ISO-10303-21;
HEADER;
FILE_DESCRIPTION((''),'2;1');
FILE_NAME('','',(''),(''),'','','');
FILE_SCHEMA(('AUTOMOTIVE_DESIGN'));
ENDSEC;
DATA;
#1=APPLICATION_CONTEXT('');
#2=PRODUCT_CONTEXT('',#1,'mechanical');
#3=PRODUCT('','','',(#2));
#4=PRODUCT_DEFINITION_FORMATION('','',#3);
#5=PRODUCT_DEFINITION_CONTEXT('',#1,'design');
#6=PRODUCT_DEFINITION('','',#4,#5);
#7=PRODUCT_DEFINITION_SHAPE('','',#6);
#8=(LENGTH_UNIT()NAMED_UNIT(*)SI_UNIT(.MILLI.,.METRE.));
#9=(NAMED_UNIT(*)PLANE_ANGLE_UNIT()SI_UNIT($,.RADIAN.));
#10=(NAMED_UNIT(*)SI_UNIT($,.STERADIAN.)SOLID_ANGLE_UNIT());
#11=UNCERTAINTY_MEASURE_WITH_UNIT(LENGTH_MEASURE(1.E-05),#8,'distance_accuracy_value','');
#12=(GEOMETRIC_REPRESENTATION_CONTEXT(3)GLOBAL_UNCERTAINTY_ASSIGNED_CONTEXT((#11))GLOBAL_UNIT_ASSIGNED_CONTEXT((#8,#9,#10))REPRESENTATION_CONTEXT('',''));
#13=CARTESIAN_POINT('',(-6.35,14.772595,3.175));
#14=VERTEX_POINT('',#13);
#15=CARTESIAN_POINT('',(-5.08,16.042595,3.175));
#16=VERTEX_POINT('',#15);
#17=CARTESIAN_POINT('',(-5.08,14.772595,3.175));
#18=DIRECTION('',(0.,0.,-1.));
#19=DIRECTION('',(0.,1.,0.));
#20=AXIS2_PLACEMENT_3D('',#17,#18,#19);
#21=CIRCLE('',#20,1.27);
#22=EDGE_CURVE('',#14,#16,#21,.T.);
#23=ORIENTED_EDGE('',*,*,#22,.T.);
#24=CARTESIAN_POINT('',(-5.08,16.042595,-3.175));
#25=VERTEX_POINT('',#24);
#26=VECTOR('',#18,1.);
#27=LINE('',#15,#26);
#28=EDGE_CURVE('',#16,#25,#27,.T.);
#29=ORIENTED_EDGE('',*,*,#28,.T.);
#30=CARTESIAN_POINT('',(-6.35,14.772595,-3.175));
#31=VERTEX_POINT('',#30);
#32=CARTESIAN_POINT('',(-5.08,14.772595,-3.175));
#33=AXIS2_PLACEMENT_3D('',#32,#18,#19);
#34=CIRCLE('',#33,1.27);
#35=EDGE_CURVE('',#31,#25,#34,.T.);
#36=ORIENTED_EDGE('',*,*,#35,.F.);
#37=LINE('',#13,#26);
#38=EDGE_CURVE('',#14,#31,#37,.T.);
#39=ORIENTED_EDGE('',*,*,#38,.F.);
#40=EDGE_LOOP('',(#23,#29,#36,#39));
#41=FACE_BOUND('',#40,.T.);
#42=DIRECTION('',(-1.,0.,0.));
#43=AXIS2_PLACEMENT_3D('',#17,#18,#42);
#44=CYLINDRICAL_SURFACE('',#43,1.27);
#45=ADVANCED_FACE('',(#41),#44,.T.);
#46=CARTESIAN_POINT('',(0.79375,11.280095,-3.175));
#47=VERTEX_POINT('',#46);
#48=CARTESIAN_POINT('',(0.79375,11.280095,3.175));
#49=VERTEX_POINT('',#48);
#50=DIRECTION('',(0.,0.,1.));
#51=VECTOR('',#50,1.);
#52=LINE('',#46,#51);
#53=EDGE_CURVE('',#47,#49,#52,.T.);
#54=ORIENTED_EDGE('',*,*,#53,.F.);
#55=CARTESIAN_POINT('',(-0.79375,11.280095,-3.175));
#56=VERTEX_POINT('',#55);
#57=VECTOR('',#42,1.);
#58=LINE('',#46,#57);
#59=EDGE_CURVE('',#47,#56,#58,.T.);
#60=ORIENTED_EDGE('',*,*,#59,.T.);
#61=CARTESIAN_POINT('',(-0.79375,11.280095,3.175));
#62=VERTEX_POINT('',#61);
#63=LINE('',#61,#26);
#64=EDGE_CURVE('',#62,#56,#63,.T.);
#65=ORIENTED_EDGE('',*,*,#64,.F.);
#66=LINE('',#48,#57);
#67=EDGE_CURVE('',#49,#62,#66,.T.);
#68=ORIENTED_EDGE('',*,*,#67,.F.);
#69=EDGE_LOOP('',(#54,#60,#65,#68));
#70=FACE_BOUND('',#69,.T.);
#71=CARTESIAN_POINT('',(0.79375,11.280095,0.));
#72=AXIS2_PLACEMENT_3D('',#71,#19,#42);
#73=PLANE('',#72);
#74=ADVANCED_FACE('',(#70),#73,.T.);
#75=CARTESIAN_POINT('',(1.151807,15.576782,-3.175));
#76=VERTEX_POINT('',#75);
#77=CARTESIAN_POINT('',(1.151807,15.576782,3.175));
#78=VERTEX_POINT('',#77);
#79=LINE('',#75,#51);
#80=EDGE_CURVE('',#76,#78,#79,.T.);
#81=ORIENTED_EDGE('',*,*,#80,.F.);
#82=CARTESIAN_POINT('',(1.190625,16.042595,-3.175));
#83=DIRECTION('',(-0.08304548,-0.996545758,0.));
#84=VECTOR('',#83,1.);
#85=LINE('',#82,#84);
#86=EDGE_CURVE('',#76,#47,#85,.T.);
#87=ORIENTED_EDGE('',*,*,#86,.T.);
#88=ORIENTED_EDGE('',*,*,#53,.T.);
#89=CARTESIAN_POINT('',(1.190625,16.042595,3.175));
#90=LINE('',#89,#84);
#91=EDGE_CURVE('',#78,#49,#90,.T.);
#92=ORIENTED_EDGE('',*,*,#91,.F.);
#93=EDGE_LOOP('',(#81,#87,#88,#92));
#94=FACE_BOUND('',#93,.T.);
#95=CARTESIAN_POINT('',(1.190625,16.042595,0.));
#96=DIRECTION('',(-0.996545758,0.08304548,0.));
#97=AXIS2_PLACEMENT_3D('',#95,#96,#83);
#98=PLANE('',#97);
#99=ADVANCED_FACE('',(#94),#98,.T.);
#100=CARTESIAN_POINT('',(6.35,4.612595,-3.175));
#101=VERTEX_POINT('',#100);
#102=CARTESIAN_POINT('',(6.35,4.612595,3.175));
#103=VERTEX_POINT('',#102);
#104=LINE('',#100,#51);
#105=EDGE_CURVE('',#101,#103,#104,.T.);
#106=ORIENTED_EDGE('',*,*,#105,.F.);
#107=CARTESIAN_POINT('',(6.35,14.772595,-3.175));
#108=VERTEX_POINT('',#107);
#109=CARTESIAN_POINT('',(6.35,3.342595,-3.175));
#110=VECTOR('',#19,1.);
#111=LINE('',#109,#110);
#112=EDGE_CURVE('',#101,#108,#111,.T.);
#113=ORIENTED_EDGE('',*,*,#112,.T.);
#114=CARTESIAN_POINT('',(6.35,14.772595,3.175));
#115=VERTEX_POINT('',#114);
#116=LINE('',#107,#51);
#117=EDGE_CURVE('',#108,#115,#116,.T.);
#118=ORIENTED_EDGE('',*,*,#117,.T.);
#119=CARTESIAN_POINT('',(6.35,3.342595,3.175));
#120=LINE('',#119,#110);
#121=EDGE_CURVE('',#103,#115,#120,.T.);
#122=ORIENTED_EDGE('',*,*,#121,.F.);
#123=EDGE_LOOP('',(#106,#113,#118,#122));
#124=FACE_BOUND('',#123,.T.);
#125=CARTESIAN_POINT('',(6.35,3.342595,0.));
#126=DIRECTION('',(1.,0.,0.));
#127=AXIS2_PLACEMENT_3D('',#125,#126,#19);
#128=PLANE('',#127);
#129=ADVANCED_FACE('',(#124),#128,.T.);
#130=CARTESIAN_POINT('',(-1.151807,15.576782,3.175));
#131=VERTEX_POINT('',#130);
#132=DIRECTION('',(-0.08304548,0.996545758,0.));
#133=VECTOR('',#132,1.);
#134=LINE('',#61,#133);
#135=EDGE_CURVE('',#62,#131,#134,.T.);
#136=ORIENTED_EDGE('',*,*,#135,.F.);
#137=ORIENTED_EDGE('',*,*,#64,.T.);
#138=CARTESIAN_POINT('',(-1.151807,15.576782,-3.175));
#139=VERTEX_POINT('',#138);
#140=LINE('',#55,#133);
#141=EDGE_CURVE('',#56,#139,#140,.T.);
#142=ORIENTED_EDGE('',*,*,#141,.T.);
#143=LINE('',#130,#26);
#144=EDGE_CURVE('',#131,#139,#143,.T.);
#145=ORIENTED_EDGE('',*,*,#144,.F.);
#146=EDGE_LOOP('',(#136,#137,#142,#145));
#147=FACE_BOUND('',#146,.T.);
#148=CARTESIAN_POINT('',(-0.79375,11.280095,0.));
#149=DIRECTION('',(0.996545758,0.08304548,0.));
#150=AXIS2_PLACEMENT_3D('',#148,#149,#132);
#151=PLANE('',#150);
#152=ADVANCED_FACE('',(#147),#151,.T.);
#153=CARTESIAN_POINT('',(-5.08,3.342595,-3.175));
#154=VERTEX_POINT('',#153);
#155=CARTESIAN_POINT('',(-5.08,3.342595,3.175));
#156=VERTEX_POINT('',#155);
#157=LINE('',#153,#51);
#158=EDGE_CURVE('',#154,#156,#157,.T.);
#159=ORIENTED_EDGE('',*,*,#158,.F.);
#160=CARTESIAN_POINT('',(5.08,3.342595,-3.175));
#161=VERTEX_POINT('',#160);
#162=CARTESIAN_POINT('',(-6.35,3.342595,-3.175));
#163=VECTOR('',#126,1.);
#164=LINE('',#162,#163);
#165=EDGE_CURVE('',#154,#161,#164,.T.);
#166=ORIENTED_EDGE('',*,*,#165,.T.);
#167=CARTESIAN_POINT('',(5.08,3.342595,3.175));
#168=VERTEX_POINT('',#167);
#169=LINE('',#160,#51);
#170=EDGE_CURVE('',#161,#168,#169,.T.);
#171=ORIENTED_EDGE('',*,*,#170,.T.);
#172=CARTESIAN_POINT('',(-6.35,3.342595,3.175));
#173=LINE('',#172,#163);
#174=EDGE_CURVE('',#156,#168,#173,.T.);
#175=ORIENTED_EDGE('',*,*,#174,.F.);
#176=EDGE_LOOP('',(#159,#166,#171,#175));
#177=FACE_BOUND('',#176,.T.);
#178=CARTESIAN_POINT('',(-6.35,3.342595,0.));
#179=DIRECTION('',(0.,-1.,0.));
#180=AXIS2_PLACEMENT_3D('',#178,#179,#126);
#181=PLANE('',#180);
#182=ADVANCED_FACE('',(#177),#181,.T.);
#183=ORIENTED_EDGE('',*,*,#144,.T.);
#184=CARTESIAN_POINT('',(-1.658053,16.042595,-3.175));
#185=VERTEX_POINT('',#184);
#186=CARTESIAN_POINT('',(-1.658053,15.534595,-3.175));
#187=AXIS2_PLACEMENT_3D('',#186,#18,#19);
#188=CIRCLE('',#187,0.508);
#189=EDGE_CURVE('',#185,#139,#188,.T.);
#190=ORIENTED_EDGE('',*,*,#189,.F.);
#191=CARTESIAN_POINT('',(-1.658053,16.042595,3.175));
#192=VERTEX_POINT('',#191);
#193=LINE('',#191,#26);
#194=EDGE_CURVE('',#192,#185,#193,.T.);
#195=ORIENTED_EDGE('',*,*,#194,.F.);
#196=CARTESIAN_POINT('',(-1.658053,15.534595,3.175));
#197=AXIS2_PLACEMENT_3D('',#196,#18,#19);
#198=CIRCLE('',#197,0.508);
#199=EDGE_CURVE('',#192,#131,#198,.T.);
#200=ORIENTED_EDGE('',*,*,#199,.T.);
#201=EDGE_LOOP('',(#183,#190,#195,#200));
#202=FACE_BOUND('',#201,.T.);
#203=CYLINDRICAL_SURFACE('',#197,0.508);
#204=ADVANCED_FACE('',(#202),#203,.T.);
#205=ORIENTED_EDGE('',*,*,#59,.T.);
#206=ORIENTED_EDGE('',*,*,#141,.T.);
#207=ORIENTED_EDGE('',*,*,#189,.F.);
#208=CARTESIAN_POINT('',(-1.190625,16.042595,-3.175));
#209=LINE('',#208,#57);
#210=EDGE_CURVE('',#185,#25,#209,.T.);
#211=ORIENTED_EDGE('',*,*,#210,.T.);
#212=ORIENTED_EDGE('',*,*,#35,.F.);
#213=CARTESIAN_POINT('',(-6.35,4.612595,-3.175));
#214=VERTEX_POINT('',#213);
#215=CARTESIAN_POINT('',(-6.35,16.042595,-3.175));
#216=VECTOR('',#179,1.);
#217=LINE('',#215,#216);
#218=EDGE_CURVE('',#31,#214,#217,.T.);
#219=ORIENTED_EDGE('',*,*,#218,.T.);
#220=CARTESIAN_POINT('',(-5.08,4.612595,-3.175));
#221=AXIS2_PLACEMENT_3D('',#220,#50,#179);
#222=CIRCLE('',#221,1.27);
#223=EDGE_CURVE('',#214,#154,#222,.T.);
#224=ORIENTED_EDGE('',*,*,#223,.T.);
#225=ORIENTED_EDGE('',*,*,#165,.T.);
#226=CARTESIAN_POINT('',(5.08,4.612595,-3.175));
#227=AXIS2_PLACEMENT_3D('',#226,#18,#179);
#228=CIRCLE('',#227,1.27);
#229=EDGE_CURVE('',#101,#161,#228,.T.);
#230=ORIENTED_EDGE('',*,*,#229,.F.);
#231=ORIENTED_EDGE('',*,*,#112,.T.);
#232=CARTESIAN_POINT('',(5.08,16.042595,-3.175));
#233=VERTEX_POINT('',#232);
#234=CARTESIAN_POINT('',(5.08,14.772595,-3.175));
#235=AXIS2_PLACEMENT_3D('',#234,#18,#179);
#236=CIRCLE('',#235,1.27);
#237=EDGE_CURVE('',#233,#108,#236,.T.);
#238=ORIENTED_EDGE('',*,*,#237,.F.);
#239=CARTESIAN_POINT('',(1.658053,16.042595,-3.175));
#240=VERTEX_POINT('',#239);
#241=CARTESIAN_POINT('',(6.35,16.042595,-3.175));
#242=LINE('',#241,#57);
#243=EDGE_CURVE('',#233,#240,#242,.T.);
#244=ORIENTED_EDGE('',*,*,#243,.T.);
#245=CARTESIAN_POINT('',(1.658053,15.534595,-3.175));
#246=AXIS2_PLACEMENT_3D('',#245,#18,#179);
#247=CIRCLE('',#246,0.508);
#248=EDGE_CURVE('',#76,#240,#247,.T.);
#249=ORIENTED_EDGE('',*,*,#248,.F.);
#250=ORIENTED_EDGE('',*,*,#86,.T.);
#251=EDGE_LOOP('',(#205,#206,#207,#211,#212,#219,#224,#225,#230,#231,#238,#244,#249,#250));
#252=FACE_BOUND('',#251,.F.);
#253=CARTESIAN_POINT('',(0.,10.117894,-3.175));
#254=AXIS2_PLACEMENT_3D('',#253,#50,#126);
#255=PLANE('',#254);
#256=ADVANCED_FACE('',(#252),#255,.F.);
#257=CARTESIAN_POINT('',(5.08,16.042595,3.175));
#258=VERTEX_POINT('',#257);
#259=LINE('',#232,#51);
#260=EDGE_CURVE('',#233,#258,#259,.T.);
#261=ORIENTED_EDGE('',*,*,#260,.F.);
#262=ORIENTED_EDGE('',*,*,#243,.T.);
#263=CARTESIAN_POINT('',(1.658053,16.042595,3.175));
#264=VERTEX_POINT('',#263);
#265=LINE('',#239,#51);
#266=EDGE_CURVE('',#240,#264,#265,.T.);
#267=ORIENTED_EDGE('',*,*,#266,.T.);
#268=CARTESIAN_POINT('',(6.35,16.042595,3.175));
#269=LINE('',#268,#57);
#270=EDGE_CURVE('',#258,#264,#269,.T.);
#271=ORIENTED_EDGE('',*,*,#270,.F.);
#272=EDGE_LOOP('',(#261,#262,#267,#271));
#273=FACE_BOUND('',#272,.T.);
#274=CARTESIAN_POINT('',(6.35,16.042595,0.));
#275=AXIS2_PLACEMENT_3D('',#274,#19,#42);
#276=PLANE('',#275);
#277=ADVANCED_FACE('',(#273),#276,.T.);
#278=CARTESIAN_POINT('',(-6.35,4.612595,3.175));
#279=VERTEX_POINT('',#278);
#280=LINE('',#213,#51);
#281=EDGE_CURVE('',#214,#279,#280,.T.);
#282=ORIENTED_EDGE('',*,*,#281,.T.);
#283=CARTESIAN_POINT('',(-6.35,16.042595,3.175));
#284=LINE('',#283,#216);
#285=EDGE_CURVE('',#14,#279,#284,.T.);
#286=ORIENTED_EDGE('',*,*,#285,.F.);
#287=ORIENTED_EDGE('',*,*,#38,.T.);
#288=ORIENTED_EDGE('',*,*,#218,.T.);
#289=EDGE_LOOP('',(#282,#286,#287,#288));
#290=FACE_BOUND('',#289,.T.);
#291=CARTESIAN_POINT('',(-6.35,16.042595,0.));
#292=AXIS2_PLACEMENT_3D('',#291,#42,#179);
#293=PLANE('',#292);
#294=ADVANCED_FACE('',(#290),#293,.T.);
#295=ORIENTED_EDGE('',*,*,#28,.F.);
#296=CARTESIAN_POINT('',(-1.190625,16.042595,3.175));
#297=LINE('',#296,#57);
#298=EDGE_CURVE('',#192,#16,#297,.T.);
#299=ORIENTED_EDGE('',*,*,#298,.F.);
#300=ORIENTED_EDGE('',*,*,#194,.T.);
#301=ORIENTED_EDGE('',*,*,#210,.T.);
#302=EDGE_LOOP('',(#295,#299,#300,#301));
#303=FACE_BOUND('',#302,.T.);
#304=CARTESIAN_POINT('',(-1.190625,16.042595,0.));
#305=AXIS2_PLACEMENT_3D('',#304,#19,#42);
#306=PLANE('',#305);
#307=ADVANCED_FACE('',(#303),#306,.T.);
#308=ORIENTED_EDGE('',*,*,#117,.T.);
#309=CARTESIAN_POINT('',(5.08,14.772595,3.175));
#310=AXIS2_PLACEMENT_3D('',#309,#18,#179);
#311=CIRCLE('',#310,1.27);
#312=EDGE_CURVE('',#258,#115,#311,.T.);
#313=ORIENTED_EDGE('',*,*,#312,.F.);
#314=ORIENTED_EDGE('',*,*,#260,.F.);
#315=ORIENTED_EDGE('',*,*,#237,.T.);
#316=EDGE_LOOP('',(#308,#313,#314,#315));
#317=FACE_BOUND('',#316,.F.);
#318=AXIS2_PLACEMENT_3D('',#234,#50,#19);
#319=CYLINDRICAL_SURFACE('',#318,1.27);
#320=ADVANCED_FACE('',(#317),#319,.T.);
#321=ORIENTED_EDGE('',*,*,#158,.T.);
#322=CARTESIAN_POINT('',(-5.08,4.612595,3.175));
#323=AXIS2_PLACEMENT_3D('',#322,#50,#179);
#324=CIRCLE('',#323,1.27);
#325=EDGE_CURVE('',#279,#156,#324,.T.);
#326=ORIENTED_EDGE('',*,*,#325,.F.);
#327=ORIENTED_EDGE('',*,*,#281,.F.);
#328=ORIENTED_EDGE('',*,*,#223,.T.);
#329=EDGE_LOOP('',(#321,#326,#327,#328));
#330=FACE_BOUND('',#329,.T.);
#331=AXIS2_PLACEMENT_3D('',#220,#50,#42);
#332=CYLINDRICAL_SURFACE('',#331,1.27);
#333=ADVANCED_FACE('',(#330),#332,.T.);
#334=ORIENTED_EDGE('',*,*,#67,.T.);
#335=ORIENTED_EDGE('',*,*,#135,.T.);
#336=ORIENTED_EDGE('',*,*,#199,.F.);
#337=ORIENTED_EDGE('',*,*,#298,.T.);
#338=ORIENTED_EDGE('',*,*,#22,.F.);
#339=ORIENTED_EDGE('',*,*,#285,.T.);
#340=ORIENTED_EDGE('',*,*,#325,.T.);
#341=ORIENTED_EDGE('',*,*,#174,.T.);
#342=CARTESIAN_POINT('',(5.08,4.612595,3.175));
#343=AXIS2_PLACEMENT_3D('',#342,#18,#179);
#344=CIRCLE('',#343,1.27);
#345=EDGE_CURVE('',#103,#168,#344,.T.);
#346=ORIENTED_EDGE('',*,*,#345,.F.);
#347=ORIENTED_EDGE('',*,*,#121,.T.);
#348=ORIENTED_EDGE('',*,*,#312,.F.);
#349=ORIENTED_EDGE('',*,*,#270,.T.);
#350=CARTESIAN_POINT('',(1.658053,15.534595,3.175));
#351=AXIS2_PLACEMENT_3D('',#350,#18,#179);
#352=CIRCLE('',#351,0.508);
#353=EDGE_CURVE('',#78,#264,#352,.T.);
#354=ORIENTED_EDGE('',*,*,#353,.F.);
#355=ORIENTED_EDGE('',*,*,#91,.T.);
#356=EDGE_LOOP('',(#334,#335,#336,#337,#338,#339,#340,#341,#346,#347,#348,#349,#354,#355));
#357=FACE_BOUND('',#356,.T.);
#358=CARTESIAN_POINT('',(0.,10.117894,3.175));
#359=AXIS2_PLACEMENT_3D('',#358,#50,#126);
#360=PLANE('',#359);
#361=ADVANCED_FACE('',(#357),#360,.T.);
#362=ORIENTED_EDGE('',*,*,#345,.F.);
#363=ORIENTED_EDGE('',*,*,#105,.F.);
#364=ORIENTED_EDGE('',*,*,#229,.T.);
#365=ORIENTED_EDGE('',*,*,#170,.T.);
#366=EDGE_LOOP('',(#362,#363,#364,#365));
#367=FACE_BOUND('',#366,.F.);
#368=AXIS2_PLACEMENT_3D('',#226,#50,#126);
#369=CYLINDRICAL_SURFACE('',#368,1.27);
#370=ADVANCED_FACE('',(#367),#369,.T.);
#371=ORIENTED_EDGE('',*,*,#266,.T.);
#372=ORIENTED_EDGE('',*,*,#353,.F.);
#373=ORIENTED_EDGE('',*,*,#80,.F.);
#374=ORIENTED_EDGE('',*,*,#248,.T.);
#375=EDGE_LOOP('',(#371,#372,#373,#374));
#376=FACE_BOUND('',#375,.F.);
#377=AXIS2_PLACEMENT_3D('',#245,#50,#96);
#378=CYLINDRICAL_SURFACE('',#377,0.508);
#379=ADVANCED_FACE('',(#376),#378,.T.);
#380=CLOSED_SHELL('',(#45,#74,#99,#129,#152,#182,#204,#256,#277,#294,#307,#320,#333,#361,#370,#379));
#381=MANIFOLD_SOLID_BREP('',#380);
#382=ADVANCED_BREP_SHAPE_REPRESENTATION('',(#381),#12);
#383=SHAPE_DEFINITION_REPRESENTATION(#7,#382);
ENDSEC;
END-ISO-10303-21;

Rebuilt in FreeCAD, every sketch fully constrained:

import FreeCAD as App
import Part
import Sketcher
from FreeCAD import Vector
Q = App.Units.Quantity


def edges_at(feature, points):
    """Names of the edges that pass closest to the given points."""
    edges = feature.Shape.Edges
    near = lambda p: min(range(len(edges)), key=lambda i: edges[i].distToShape(Part.Vertex(*p))[0])
    return sorted({f"Edge{near(p) + 1}" for p in points})

doc = App.newDocument("Part")
body = doc.addObject("PartDesign::Body", "Body")

sketch1 = doc.addObject("Sketcher::SketchObject", "Sketch")
body.addObject(sketch1)
sketch1.AttachmentSupport = (doc.XY_Plane, [""])
sketch1.MapMode = "FlatFace"
sketch1.addGeometry([
    Part.LineSegment(Vector(-6.3, 16, 0), Vector(-6.3, 3.3, 0)),
    Part.LineSegment(Vector(-6.3, 3.3, 0), Vector(6.3, 3.3, 0)),
    Part.LineSegment(Vector(6.3, 3.3, 0), Vector(6.3, 16, 0)),
    Part.LineSegment(Vector(6.3, 16, 0), Vector(1.2, 16, 0)),
    Part.LineSegment(Vector(1.2, 16, 0), Vector(0.8, 11.3, 0)),
    Part.LineSegment(Vector(0.8, 11.3, 0), Vector(-0.8, 11.3, 0)),
    Part.LineSegment(Vector(-0.8, 11.3, 0), Vector(-1.2, 16, 0)),
    Part.LineSegment(Vector(-1.2, 16, 0), Vector(-6.3, 16, 0)),
], False)
sketch1.addConstraint([
    Sketcher.Constraint("Coincident", 0, 2, 1, 1),
    Sketcher.Constraint("Coincident", 1, 2, 2, 1),
    Sketcher.Constraint("Coincident", 2, 2, 3, 1),
    Sketcher.Constraint("Coincident", 3, 2, 4, 1),
    Sketcher.Constraint("Coincident", 4, 2, 5, 1),
    Sketcher.Constraint("Coincident", 5, 2, 6, 1),
    Sketcher.Constraint("Coincident", 6, 2, 7, 1),
    Sketcher.Constraint("Coincident", 7, 2, 0, 1),
    Sketcher.Constraint("Vertical", 0),
    Sketcher.Constraint("Horizontal", 1),
    Sketcher.Constraint("Vertical", 2),
    Sketcher.Constraint("Horizontal", 3),
    Sketcher.Constraint("Horizontal", 5),
    Sketcher.Constraint("Horizontal", 7),
    Sketcher.Constraint("Symmetric", 3, 2, 6, 2, -2),
    Sketcher.Constraint("Equal", 3, 7),
    Sketcher.Constraint("Equal", 1, 0),
    Sketcher.Constraint("Equal", 4, 6),
    Sketcher.Constraint("DistanceX", 1, 1, 1, 2, Q("0.5 in")),
    Sketcher.Constraint("DistanceX", 3, 2, 3, 1, Q("0.203125 in")),
    Sketcher.Constraint("DistanceX", 5, 2, 5, 1, Q("0.0625 in")),
    Sketcher.Constraint("DistanceY", 4, 2, 3, 2, Q("0.1875 in")),
    Sketcher.Constraint("DistanceY", -1, 1, 0, 2, Q("3.342595 mm")),
])
pad1 = doc.addObject("PartDesign::Pad", "Pad")
body.addObject(pad1)
pad1.Profile = sketch1
pad1.Length = Q("0.25 in")
pad1.Midplane = True
doc.recompute()

fillet = doc.addObject("PartDesign::Fillet", "Fillet")
body.addObject(fillet)
fillet.Base = (pad1, edges_at(pad1, [
    (-6.35, 3.343, 0),
    (6.35, 3.343, 0),
    (6.35, 16.043, 0),
    (-6.35, 16.043, 0),
]))
fillet.Radius = Q("0.05 in")
doc.recompute()

fillet2 = doc.addObject("PartDesign::Fillet", "Fillet001")
body.addObject(fillet2)
fillet2.Base = (fillet, edges_at(fillet, [(1.191, 16.043, 0), (-1.191, 16.043, 0)]))
fillet2.Radius = Q("0.02 in")

doc.recompute()
